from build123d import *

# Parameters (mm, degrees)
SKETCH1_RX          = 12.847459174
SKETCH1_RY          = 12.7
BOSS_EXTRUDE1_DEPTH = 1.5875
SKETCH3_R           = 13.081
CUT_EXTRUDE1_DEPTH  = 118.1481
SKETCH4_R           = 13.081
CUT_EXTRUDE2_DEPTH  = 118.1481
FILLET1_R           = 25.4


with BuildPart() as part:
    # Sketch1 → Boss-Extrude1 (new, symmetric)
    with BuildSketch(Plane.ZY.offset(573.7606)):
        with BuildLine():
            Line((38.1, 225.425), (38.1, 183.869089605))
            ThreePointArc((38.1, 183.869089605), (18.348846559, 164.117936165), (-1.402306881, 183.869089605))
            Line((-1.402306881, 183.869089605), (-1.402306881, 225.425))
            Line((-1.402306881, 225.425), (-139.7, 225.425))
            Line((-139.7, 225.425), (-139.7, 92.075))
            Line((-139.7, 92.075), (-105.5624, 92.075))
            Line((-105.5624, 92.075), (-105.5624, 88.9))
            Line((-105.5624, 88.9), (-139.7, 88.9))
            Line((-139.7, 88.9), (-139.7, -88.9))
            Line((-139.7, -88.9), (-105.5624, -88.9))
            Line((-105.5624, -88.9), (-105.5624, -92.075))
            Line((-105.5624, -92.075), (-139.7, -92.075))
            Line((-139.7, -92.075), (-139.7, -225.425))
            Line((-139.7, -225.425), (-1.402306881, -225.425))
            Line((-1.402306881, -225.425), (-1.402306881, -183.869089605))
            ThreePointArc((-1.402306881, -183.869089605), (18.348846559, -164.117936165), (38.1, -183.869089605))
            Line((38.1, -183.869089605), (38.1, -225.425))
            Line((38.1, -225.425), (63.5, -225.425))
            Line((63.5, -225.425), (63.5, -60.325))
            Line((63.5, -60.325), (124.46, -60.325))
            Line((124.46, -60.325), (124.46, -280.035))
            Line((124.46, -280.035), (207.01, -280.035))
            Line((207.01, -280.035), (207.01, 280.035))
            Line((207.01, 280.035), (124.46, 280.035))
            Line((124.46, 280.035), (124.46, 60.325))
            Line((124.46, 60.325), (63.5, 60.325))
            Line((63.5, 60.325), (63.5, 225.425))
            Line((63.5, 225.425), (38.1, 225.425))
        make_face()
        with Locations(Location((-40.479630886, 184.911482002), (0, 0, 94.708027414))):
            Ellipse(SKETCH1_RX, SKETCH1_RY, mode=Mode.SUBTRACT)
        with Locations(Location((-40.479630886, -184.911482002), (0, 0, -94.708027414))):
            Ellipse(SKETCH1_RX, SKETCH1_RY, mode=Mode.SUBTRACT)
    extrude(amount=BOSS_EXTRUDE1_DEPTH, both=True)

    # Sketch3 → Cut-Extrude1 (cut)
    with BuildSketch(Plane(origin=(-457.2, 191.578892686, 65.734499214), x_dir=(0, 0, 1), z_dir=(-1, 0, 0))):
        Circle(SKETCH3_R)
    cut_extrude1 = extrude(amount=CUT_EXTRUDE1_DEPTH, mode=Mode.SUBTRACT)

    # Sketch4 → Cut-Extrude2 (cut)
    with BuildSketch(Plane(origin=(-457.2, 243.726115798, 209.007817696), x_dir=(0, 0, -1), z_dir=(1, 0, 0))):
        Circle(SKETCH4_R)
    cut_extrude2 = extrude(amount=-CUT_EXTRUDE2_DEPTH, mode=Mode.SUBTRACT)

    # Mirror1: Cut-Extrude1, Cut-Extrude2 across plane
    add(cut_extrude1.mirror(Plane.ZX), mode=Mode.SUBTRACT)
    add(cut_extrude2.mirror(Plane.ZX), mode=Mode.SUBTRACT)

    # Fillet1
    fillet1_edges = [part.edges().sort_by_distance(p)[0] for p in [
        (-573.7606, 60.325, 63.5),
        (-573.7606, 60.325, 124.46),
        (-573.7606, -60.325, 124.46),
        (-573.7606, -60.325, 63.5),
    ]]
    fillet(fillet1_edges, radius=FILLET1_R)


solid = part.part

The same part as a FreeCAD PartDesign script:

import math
import FreeCAD as App
import Part
import Sketcher
from FreeCAD import Vector
Q = App.Units.Quantity


def edges_at(feature, points):
    """Names of the edges that pass closest to the given points."""
    edges = feature.Shape.Edges
    near = lambda p: min(range(len(edges)), key=lambda i: edges[i].distToShape(Part.Vertex(*p))[0])
    return sorted({f"Edge{near(p) + 1}" for p in points})

doc = App.newDocument("Part")
params = doc.addObject("Spreadsheet::Sheet", "Params")
for row, (alias, value) in enumerate([
    ("sketch1_width", "7 in"),
    ("sketch1_height", "1 in"),
    ("sketch1_width2", "6.5 in"),
    ("sketch1_height2", "2.4 in"),
    ("sketch1_width3", "5.25 in"),
    ("pad1_length", "0.125 in"),
    ("sketch2_diameter", "1.03 in"),
    ("pocket1_length", "4.6515 in"),
    ("sketch3_diameter", "1.03 in"),
    ("pocket2_length", "4.6515 in"),
    ("fillet_radius", "1 in"),
], start=1):
    params.set(f"A{row}", alias)
    params.set(f"B{row}", "=" + value)
    params.setAlias(f"B{row}", alias)

body = doc.addObject("PartDesign::Body", "Body")

sketch1 = body.newObject("Sketcher::SketchObject", "Sketch")
sketch1.AttachmentSupport = (doc.getObject("YZ_Plane"), [""])
sketch1.MapMode = "FlatFace"
sketch1.AttachmentOffset = App.Placement(Vector(0, 0, -22.589 * 25.4), App.Rotation())
sketch1.addGeometry([
    Part.LineSegment(Vector(225.425, 38.1, 0), Vector(183.86909, 38.1, 0)),
    Part.ArcOfCircle(Part.Circle(Vector(183.86909, 18.348847, 0), Vector(0, 0, 1), 19.751153), math.radians(90), math.radians(270)),
    Part.LineSegment(Vector(183.86909, -1.402307, 0), Vector(225.425, -1.402307, 0)),
    Part.LineSegment(Vector(225.425, -1.402307, 0), Vector(225.425, -139.7, 0)),
    Part.LineSegment(Vector(225.425, -139.7, 0), Vector(92.075, -139.7, 0)),
    Part.LineSegment(Vector(92.075, -139.7, 0), Vector(92.075, -105.5624, 0)),
    Part.LineSegment(Vector(92.075, -105.5624, 0), Vector(88.9, -105.5624, 0)),
    Part.LineSegment(Vector(88.9, -105.5624, 0), Vector(88.9, -139.7, 0)),
    Part.LineSegment(Vector(88.9, -139.7, 0), Vector(-88.9, -139.7, 0)),
    Part.LineSegment(Vector(-88.9, -139.7, 0), Vector(-88.9, -105.5624, 0)),
    Part.LineSegment(Vector(-88.9, -105.5624, 0), Vector(-92.075, -105.5624, 0)),
    Part.LineSegment(Vector(-92.075, -105.5624, 0), Vector(-92.075, -139.7, 0)),
    Part.LineSegment(Vector(-92.075, -139.7, 0), Vector(-225.425, -139.7, 0)),
    Part.LineSegment(Vector(-225.425, -139.7, 0), Vector(-225.425, -1.402307, 0)),
    Part.LineSegment(Vector(-225.425, -1.402307, 0), Vector(-183.86909, -1.402307, 0)),
    Part.ArcOfCircle(Part.Circle(Vector(-183.86909, 18.348847, 0), Vector(0, 0, 1), 19.751153), math.radians(-90), math.radians(90)),
    Part.LineSegment(Vector(-183.86909, 38.1, 0), Vector(-225.425, 38.1, 0)),
    Part.LineSegment(Vector(-225.425, 38.1, 0), Vector(-225.425, 63.5, 0)),
    Part.LineSegment(Vector(-225.425, 63.5, 0), Vector(-60.325, 63.5, 0)),
    Part.LineSegment(Vector(-60.325, 63.5, 0), Vector(-60.325, 124.46, 0)),
    Part.LineSegment(Vector(-60.325, 124.46, 0), Vector(-280.035, 124.46, 0)),
    Part.LineSegment(Vector(-280.035, 124.46, 0), Vector(-280.035, 207.01, 0)),
    Part.LineSegment(Vector(-280.035, 207.01, 0), Vector(280.035, 207.01, 0)),
    Part.LineSegment(Vector(280.035, 207.01, 0), Vector(280.035, 124.46, 0)),
    Part.LineSegment(Vector(280.035, 124.46, 0), Vector(60.325, 124.46, 0)),
    Part.LineSegment(Vector(60.325, 124.46, 0), Vector(60.325, 63.5, 0)),
    Part.LineSegment(Vector(60.325, 63.5, 0), Vector(225.425, 63.5, 0)),
    Part.LineSegment(Vector(225.425, 63.5, 0), Vector(225.425, 38.1, 0)),
    Part.Ellipse(Vector(-197.715593, -41.534126, 0), Vector(-183.86909, -53.13678, 0), Vector(-184.911482, -40.479631, 0)),
    Part.Ellipse(Vector(197.715593, -41.534126, 0), Vector(185.953874, -27.822482, 0), Vector(184.911482, -40.479631, 0)),
], False)
sketch1.addConstraint([
    Sketcher.Constraint("Block", 28),
    Sketcher.Constraint("Block", 29),
    Sketcher.Constraint("Tangent", 0, 2, 1, 1),
    Sketcher.Constraint("Tangent", 1, 2, 2, 1),
    Sketcher.Constraint("Coincident", 2, 2, 3, 1),
    Sketcher.Constraint("Coincident", 3, 2, 4, 1),
    Sketcher.Constraint("Coincident", 4, 2, 5, 1),
    Sketcher.Constraint("Coincident", 5, 2, 6, 1),
    Sketcher.Constraint("Coincident", 6, 2, 7, 1),
    Sketcher.Constraint("Coincident", 7, 2, 8, 1),
    Sketcher.Constraint("Coincident", 8, 2, 9, 1),
    Sketcher.Constraint("Coincident", 9, 2, 10, 1),
    Sketcher.Constraint("Coincident", 10, 2, 11, 1),
    Sketcher.Constraint("Coincident", 11, 2, 12, 1),
    Sketcher.Constraint("Coincident", 12, 2, 13, 1),
    Sketcher.Constraint("Coincident", 13, 2, 14, 1),
    Sketcher.Constraint("Tangent", 14, 2, 15, 1),
    Sketcher.Constraint("Tangent", 15, 2, 16, 1),
    Sketcher.Constraint("Coincident", 16, 2, 17, 1),
    Sketcher.Constraint("Coincident", 17, 2, 18, 1),
    Sketcher.Constraint("Coincident", 18, 2, 19, 1),
    Sketcher.Constraint("Coincident", 19, 2, 20, 1),
    Sketcher.Constraint("Coincident", 20, 2, 21, 1),
    Sketcher.Constraint("Coincident", 21, 2, 22, 1),
    Sketcher.Constraint("Coincident", 22, 2, 23, 1),
    Sketcher.Constraint("Coincident", 23, 2, 24, 1),
    Sketcher.Constraint("Coincident", 24, 2, 25, 1),
    Sketcher.Constraint("Coincident", 25, 2, 26, 1),
    Sketcher.Constraint("Coincident", 26, 2, 27, 1),
    Sketcher.Constraint("Coincident", 27, 2, 0, 1),
    Sketcher.Constraint("Horizontal", 0),
    Sketcher.Constraint("Horizontal", 2),
    Sketcher.Constraint("Vertical", 3),
    Sketcher.Constraint("Horizontal", 4),
    Sketcher.Constraint("Vertical", 5),
    Sketcher.Constraint("Horizontal", 6),
    Sketcher.Constraint("Vertical", 7),
    Sketcher.Constraint("Horizontal", 8),
    Sketcher.Constraint("Vertical", 9),
    Sketcher.Constraint("Horizontal", 10),
    Sketcher.Constraint("Vertical", 11),
    Sketcher.Constraint("Horizontal", 12),
    Sketcher.Constraint("Vertical", 13),
    Sketcher.Constraint("Horizontal", 14),
    Sketcher.Constraint("Horizontal", 16),
    Sketcher.Constraint("Vertical", 17),
    Sketcher.Constraint("Horizontal", 18),
    Sketcher.Constraint("Vertical", 19),
    Sketcher.Constraint("Horizontal", 20),
    Sketcher.Constraint("Vertical", 21),
    Sketcher.Constraint("Horizontal", 22),
    Sketcher.Constraint("Vertical", 23),
    Sketcher.Constraint("Horizontal", 24),
    Sketcher.Constraint("Vertical", 25),
    Sketcher.Constraint("Horizontal", 26),
    Sketcher.Constraint("Vertical", 27),
    Sketcher.Constraint("Equal", 1, 15),
    Sketcher.Constraint("Symmetric", 1, 3, 15, 3, -2),
    Sketcher.Constraint("Symmetric", 6, 2, 9, 2, -2),
    Sketcher.Constraint("Symmetric", 4, 2, 11, 2, -2),
    Sketcher.Constraint("Symmetric", 20, 2, 23, 2, -2),
    Sketcher.Constraint("Symmetric", 18, 2, 25, 2, -2),
    Sketcher.Constraint("Horizontal", 4, 2, 7, 2),
    Sketcher.Constraint("Vertical", 13, 2, 16, 2),
    Sketcher.Constraint("Vertical", 3, 2, 26, 2),
    Sketcher.Constraint("Equal", 4, 12),
    Sketcher.Constraint("DistanceX", 8, 2, 8, 1, Q("7 in")),
    Sketcher.Constraint("DistanceY", 17, 1, 17, 2, Q("1 in")),
    Sketcher.Constraint("DistanceX", 18, 1, 18, 2, Q("6.5 in")),
    Sketcher.Constraint("DistanceY", 19, 1, 19, 2, Q("2.4 in")),
    Sketcher.Constraint("DistanceY", 3, 2, 0, 2, Q("7 in")),
    Sketcher.Constraint("DistanceX", 4, 2, 4, 1, Q("5.25 in")),
    Sketcher.Constraint("DistanceX", 20, 2, 20, 1, Q("8.65 in")),
    Sketcher.Constraint("DistanceX", 22, 1, 22, 2, Q("22.05 in")),
    Sketcher.Constraint("DistanceY", 21, 1, 21, 2, Q("3.25 in")),
    Sketcher.Constraint("DistanceY", -1, 1, 0, 2, Q("1.5 in")),
    Sketcher.Constraint("DistanceY", 5, 1, 5, 2, Q("1.344 in")),
    Sketcher.Constraint("Radius", 1, Q("19.751153 mm")),
    Sketcher.Constraint("DistanceX", 0, 2, 0, 1, Q("41.55591 mm")),
])
sketch1.setExpression("Constraints[66]", "Params.sketch1_width")
sketch1.setExpression("Constraints[67]", "Params.sketch1_height")
sketch1.setExpression("Constraints[68]", "Params.sketch1_width2")
sketch1.setExpression("Constraints[69]", "Params.sketch1_height2")
sketch1.setExpression("Constraints[71]", "Params.sketch1_width3")
pad1 = body.newObject("PartDesign::Pad", "Pad")
pad1.Profile = sketch1
pad1.setExpression("Length", "Params.pad1_length")
pad1.Midplane = True

sketch2 = body.newObject("Sketcher::SketchObject", "Sketch001")
sketch2.AttachmentSupport = (doc.getObject("YZ_Plane"), [""])
sketch2.MapMode = "FlatFace"
sketch2.AttachmentOffset = App.Placement(Vector(0, 0, -18 * 25.4), App.Rotation())
sketch2.addGeometry(Part.Circle(Vector(192, 66, 0), Vector(0, 0, 1), 13), False)
sketch2.addConstraint([
    Sketcher.Constraint("Diameter", 0, Q("1.03 in")),
    Sketcher.Constraint("DistanceY", -1, 1, 0, 3, Q("65.734499 mm")),
    Sketcher.Constraint("DistanceX", -1, 1, 0, 3, Q("191.578893 mm")),
])
sketch2.setExpression("Constraints[0]", "Params.sketch2_diameter")
pocket1 = body.newObject("PartDesign::Pocket", "Pocket")
pocket1.Profile = sketch2
pocket1.setExpression("Length", "Params.pocket1_length")

sketch3 = body.newObject("Sketcher::SketchObject", "Sketch002")
sketch3.AttachmentSupport = (doc.getObject("YZ_Plane"), [""])
sketch3.MapMode = "FlatFace"
sketch3.AttachmentOffset = App.Placement(Vector(0, 0, -18 * 25.4), App.Rotation())
sketch3.addGeometry(Part.Circle(Vector(244, 209, 0), Vector(0, 0, 1), 13), False)
sketch3.addConstraint([
    Sketcher.Constraint("Diameter", 0, Q("1.03 in")),
    Sketcher.Constraint("DistanceX", -1, 1, 0, 3, Q("243.726116 mm")),
    Sketcher.Constraint("DistanceY", -1, 1, 0, 3, Q("209.007818 mm")),
])
sketch3.setExpression("Constraints[0]", "Params.sketch3_diameter")
pocket2 = body.newObject("PartDesign::Pocket", "Pocket001")
pocket2.Profile = sketch3
pocket2.setExpression("Length", "Params.pocket2_length")
doc.recompute()

mirrored = body.newObject("PartDesign::Mirrored", "Mirrored")
mirrored.Originals = [pocket1, pocket2]
mirrored.MirrorPlane = (doc.getObject("XZ_Plane"), [""])
body.Tip = mirrored
doc.recompute()

fillet = body.newObject("PartDesign::Fillet", "Fillet")
fillet.Base = (mirrored, edges_at(mirrored, [
    (-573.761, 60.325, 63.5),
    (-573.761, 60.325, 124.46),
    (-573.761, -60.325, 124.46),
    (-573.761, -60.325, 63.5),
]))
fillet.setExpression("Radius", "Params.fillet_radius")

doc.recompute()
